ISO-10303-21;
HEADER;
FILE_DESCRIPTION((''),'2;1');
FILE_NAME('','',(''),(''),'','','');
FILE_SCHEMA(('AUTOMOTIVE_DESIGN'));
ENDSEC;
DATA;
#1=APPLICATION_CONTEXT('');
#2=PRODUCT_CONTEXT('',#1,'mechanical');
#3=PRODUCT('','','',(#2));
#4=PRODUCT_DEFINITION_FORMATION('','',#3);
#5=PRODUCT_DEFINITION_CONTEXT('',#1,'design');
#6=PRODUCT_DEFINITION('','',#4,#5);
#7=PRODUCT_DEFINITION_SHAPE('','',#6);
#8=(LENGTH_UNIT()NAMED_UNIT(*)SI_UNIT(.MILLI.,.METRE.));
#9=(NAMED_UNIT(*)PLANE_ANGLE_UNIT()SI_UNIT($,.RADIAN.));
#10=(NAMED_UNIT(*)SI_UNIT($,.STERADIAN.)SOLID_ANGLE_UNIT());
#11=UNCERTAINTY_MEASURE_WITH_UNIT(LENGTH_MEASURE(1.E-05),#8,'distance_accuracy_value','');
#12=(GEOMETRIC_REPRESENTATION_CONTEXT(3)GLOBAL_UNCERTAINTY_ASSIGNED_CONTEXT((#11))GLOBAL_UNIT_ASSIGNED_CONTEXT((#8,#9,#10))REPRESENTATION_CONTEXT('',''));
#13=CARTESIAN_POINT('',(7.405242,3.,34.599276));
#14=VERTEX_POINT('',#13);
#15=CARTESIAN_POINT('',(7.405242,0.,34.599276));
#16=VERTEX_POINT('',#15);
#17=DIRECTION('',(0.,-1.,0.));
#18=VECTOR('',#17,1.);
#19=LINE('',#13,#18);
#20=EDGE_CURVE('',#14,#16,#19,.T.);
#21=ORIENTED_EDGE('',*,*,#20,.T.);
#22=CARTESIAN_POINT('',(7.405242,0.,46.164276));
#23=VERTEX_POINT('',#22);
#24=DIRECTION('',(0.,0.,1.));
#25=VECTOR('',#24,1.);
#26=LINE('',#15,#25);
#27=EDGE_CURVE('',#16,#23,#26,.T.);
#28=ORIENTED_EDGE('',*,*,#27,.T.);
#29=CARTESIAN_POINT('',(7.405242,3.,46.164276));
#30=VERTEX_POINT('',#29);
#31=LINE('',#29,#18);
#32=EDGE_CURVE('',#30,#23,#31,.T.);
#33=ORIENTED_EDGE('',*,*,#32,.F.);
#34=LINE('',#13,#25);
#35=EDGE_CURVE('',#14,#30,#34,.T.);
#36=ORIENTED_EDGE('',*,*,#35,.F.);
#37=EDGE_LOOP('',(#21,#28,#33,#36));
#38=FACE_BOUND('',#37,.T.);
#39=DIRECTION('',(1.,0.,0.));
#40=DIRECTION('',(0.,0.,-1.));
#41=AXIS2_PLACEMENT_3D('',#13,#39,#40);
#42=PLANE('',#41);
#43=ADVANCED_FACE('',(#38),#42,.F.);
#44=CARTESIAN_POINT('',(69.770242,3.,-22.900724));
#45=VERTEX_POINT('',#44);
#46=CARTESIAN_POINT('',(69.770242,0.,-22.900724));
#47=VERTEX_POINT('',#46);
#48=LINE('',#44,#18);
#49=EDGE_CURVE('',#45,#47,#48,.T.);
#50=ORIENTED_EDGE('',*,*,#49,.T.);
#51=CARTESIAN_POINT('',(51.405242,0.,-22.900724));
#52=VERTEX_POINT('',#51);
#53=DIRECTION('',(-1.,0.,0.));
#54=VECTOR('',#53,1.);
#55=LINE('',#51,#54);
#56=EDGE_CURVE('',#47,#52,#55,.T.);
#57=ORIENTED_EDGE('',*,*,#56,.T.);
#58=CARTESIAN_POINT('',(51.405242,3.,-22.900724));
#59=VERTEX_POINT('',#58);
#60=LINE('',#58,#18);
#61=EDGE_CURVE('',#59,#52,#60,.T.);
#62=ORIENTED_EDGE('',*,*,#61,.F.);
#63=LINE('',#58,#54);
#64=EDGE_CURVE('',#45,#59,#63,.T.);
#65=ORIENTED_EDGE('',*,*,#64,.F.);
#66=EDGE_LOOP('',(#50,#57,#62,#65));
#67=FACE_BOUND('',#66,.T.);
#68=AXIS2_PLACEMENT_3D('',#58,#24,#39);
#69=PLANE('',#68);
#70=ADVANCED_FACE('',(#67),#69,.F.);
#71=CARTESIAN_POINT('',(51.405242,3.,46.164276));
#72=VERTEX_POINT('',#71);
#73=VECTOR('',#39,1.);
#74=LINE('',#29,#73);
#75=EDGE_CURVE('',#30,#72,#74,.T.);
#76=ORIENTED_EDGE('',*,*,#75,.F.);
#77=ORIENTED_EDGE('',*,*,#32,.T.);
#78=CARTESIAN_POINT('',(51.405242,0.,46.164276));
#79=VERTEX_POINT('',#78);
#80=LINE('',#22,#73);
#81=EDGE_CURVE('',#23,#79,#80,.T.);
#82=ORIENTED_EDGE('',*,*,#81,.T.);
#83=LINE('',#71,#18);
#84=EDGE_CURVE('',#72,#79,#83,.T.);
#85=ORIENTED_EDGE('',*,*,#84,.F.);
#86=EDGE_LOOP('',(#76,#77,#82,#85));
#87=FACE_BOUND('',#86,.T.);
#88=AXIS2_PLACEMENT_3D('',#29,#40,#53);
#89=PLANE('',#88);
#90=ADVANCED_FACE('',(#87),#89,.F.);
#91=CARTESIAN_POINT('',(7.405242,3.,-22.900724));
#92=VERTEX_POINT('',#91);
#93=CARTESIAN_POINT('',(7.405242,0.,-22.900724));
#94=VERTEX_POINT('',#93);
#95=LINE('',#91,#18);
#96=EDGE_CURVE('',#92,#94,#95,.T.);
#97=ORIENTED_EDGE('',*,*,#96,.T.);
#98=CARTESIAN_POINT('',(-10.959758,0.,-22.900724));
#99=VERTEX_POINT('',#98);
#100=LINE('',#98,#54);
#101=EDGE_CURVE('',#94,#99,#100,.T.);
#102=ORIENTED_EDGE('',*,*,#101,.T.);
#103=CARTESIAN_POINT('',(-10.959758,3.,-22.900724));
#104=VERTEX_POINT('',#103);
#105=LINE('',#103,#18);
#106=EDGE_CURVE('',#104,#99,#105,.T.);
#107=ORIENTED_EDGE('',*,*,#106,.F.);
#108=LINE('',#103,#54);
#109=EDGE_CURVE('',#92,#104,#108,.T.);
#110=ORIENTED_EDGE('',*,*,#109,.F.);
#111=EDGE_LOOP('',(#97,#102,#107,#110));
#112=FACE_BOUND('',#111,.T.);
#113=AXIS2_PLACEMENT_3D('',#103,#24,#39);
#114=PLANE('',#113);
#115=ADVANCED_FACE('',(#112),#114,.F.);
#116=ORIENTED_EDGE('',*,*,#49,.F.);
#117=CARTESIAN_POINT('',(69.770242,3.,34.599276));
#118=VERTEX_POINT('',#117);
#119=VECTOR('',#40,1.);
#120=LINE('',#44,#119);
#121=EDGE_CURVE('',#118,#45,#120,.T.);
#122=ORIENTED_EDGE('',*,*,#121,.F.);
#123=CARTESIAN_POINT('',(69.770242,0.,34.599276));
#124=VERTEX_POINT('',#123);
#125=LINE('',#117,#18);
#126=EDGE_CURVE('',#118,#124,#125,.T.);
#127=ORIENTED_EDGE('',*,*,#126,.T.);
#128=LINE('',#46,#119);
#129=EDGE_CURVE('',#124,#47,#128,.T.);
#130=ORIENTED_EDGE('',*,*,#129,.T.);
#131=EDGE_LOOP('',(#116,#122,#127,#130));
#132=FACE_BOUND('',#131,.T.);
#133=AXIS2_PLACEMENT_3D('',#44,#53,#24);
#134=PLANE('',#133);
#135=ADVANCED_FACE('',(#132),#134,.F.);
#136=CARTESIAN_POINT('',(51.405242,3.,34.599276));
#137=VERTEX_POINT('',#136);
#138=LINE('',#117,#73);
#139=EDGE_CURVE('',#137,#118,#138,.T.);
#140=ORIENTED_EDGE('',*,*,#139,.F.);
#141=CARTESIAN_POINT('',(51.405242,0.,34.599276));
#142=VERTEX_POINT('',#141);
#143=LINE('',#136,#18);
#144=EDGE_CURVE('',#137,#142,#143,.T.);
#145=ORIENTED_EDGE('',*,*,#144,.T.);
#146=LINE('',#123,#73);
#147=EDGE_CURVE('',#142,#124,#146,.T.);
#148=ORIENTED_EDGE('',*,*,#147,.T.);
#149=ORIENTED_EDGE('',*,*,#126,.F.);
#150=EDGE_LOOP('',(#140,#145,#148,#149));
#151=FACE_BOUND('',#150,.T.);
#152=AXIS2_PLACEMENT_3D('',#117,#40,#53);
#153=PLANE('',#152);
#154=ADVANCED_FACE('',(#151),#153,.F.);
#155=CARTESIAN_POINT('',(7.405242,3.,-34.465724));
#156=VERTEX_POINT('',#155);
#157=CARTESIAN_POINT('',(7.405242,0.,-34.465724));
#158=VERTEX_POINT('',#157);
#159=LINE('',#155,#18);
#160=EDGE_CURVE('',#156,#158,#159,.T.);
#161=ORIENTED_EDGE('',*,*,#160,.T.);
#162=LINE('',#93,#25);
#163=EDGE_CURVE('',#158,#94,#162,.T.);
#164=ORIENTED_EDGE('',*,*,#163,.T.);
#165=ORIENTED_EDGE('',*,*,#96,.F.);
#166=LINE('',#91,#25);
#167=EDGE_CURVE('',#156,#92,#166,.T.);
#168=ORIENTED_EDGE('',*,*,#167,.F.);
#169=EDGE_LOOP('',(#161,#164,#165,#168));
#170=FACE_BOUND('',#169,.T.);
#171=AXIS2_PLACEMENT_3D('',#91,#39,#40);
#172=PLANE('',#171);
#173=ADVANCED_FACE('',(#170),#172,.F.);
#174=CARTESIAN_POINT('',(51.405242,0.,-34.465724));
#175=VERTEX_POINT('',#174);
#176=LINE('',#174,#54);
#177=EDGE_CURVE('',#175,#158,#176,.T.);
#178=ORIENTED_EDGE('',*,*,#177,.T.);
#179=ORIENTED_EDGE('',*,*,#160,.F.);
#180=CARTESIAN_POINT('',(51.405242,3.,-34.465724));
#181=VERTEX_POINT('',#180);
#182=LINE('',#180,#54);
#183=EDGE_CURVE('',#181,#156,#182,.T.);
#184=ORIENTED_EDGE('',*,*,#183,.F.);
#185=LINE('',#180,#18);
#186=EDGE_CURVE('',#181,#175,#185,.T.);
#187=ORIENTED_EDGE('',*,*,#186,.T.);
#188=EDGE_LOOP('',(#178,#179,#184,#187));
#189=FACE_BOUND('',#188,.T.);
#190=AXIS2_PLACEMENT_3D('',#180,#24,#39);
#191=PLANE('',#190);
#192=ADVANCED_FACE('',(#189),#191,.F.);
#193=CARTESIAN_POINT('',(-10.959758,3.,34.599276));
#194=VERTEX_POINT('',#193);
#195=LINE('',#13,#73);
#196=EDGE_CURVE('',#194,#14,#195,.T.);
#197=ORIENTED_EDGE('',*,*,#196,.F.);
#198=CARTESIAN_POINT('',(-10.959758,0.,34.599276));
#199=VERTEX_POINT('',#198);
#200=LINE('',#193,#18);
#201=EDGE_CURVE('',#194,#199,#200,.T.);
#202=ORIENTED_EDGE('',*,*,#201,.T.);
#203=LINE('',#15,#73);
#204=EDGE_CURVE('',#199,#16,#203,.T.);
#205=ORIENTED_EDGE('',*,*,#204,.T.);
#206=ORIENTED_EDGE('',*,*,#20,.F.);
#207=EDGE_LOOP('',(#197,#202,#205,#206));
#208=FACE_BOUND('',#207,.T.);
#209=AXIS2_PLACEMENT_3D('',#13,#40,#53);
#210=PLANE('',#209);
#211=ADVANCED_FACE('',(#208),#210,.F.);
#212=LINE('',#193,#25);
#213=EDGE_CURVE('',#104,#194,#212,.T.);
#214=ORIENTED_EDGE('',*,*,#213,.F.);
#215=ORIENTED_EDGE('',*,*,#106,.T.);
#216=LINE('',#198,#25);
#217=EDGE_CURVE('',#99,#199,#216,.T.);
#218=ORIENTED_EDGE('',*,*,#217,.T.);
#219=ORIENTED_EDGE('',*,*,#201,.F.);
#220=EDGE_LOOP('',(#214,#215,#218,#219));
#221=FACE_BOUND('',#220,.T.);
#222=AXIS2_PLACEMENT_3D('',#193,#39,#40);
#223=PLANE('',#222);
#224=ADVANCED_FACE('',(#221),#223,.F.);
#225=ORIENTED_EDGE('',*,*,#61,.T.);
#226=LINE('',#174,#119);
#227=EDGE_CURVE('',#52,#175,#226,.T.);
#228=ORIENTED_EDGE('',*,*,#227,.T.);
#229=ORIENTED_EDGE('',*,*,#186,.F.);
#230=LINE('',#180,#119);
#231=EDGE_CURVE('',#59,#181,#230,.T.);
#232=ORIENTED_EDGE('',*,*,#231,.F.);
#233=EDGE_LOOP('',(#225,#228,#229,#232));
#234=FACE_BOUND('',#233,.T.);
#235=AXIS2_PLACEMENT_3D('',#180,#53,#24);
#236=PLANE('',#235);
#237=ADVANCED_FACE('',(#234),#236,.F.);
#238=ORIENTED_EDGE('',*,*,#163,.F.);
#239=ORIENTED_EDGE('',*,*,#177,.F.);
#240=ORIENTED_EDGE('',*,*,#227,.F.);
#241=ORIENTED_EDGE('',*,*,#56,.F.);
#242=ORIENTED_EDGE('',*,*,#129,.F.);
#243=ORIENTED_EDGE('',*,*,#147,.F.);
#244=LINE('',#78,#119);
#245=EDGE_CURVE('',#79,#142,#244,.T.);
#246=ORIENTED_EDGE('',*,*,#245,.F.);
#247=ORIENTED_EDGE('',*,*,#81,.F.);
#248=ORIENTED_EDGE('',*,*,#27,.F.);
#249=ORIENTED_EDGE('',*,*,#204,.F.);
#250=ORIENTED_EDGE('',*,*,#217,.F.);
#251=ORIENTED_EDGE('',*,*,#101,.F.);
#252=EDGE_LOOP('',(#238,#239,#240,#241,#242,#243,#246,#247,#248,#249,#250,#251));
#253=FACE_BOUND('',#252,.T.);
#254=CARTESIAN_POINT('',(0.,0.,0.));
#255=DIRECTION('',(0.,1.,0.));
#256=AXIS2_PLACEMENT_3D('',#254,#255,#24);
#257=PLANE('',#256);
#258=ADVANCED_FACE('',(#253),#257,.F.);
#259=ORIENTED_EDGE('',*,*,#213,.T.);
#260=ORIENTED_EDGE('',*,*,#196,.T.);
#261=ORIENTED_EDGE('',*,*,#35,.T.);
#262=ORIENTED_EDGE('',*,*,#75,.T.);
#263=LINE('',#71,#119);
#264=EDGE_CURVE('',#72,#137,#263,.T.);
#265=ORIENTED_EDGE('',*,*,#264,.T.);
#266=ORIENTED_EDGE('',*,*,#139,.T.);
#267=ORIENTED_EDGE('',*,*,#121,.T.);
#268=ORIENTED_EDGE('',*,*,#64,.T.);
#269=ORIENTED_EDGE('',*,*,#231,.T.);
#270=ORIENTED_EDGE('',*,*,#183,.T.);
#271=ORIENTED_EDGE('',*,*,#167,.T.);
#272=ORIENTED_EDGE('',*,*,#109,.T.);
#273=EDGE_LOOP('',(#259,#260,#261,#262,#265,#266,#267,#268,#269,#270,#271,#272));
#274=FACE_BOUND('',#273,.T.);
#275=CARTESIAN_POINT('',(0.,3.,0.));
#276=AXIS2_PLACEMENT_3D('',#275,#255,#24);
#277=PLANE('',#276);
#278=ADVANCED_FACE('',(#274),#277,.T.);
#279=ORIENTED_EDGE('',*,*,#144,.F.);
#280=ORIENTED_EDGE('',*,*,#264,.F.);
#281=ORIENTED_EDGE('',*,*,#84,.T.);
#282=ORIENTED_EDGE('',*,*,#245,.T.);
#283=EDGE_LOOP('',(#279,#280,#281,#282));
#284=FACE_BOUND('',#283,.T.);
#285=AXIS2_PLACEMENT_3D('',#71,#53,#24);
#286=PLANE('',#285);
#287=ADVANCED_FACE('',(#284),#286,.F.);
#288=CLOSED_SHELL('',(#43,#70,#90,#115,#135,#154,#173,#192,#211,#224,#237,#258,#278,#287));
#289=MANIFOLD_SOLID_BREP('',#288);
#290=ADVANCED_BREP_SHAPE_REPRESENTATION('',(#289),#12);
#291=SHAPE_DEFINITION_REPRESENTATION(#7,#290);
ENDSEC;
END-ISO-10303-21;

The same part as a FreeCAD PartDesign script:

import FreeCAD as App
import Part
import Sketcher
from FreeCAD import Vector


def add_polygon(sketch, points):
    """Adds a closed chain of lines whose ends are joined by coincident constraints."""
    first, n = sketch.GeometryCount, len(points)
    for a, b in zip(points, points[1:] + points[:1]):
        sketch.addGeometry(Part.LineSegment(App.Vector(*a, 0), App.Vector(*b, 0)), False)
    for i in range(n):
        sketch.addConstraint(Sketcher.Constraint("Coincident", first + i, 2, first + (i + 1) % n, 1))

doc = App.newDocument("Part")
params = doc.addObject("Spreadsheet::Sheet", "Params")
for row, (alias, value) in enumerate([
    ("sketch1_width", "44 mm"),
    ("sketch1_height", "57.5 mm"),
    ("pad1_length", "3 mm"),
], start=1):
    params.set(f"A{row}", alias)
    params.set(f"B{row}", "=" + value)
    params.setAlias(f"B{row}", alias)

body = doc.addObject("PartDesign::Body", "Body")

# Sketch on XZ plane
sketch1 = doc.addObject("Sketcher::SketchObject", "Sketch")
body.addObject(sketch1)
sketch1.AttachmentSupport = (doc.XZ_Plane, [""])
sketch1.MapMode = "FlatFace"
add_polygon(sketch1, [(7.405242, 46.164276), (51.405242, 46.164276), (51.405242, 34.599276), (69.770242, 34.599276), (69.770242, -22.900724), (51.405242, -22.900724), (51.405242, -34.465724), (7.405242, -34.465724), (7.405242, -22.900724), (-10.959758, -22.900724), (-10.959758, 34.599276), (7.405242, 34.599276)])  # lines 0-11
sketch1.addConstraint([
    Sketcher.Constraint("Horizontal", 0),
    Sketcher.Constraint("Vertical", 1),
    Sketcher.Constraint("Horizontal", 2),
    Sketcher.Constraint("Vertical", 3),
    Sketcher.Constraint("Horizontal", 4),
    Sketcher.Constraint("Vertical", 5),
    Sketcher.Constraint("Horizontal", 6),
    Sketcher.Constraint("Vertical", 7),
    Sketcher.Constraint("Horizontal", 8),
    Sketcher.Constraint("Vertical", 9),
    Sketcher.Constraint("Horizontal", 10),
    Sketcher.Constraint("Vertical", 11),
    Sketcher.Constraint("Horizontal", 4, 2, 7, 2),
    Sketcher.Constraint("Horizontal", 2, 2, 9, 2),
    Sketcher.Constraint("Vertical", 1, 2, 4, 2),
    Sketcher.Constraint("Vertical", 7, 2, 10, 2),
    Sketcher.Constraint("Equal", 4, 8),
    Sketcher.Constraint("Equal", 1, 5),
    Sketcher.Constraint("DistanceX", 0, 1, 0, 2, 44.0),
    Sketcher.Constraint("DistanceY", 3, 2, 3, 1, 57.5),
    Sketcher.Constraint("DistanceX", 2, 1, 2, 2, 18.365),
    Sketcher.Constraint("DistanceY", 1, 2, 1, 1, 11.565),
    Sketcher.Constraint("DistanceX", -1, 1, 0, 2, 51.405242),
    Sketcher.Constraint("DistanceY", -1, 1, 0, 2, 46.164276),
])
sketch1.setExpression("Constraints[30]", "Params.sketch1_width")
sketch1.setExpression("Constraints[31]", "Params.sketch1_height")
pad1 = doc.addObject("PartDesign::Pad", "Pad")
body.addObject(pad1)
pad1.Profile = sketch1
pad1.setExpression("Length", "Params.pad1_length")
pad1.Reversed = True

doc.recompute()
